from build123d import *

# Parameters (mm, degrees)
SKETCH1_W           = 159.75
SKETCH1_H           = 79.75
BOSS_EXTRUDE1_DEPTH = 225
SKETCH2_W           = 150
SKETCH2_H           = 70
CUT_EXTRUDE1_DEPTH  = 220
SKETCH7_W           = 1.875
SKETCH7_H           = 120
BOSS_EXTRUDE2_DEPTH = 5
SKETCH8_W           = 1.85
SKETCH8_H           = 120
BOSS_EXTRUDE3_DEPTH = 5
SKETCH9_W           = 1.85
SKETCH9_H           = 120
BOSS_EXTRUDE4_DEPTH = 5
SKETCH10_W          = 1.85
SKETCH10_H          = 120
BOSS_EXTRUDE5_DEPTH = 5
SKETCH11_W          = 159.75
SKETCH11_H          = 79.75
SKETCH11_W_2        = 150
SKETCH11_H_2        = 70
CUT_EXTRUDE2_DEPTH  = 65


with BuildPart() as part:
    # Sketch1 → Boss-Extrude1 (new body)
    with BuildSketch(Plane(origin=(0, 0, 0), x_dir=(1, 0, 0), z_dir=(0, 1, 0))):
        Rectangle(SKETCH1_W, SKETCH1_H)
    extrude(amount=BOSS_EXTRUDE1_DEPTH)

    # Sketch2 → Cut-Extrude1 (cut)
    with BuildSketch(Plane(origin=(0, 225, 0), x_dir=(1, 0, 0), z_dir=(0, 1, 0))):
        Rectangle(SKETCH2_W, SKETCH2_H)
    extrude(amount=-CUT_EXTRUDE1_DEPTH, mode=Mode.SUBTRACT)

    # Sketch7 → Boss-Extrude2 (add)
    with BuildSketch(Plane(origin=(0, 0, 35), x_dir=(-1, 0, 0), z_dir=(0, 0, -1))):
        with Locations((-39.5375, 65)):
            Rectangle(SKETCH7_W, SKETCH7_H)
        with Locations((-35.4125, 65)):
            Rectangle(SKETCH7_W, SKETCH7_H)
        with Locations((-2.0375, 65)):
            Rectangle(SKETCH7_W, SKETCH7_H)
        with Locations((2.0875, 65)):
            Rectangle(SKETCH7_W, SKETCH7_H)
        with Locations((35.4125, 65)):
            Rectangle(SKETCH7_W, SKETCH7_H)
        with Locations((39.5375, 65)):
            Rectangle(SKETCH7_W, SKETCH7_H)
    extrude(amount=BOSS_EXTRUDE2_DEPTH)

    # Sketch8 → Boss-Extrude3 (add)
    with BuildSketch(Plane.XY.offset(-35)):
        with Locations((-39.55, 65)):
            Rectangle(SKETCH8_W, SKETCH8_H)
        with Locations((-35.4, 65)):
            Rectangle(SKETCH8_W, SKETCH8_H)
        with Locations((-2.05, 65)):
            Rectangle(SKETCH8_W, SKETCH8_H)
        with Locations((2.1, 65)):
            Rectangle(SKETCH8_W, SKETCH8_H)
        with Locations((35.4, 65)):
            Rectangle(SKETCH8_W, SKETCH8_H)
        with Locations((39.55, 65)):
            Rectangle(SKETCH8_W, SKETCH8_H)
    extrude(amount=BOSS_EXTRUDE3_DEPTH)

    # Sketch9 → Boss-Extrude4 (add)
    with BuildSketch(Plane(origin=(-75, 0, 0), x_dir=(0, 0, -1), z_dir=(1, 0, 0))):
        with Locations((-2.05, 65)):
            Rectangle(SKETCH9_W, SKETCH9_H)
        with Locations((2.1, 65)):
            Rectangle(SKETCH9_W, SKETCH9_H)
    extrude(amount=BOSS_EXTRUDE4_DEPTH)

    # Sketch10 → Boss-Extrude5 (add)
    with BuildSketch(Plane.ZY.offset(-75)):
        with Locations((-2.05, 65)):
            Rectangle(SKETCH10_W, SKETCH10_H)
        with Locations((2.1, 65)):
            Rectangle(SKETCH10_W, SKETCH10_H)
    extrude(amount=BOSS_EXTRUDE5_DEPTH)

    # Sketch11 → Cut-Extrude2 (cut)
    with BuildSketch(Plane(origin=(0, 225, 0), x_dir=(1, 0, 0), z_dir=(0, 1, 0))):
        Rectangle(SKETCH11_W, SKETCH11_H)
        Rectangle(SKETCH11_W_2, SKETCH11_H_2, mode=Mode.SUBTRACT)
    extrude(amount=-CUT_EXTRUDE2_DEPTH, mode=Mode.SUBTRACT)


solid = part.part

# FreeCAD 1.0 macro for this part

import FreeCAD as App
import Part
import Sketcher
from FreeCAD import Vector
Q = App.Units.Quantity

doc = App.newDocument("Part")
body = doc.addObject("PartDesign::Body", "Body")

# Sketch on XZ plane
sketch1 = body.newObject("Sketcher::SketchObject", "Sketch")
sketch1.AttachmentSupport = (doc.getObject("XZ_Plane"), [""])
sketch1.MapMode = "FlatFace"
sketch1.addGeometry([
    Part.LineSegment(Vector(-80, -40, 0), Vector(-80, 40, 0)),
    Part.LineSegment(Vector(-80, 40, 0), Vector(80, 40, 0)),
    Part.LineSegment(Vector(80, 40, 0), Vector(80, -40, 0)),
    Part.LineSegment(Vector(80, -40, 0), Vector(-80, -40, 0)),
], False)
sketch1.addConstraint([
    Sketcher.Constraint("Coincident", 0, 2, 1, 1),
    Sketcher.Constraint("Coincident", 1, 2, 2, 1),
    Sketcher.Constraint("Coincident", 2, 2, 3, 1),
    Sketcher.Constraint("Coincident", 3, 2, 0, 1),
    Sketcher.Constraint("Vertical", 0),
    Sketcher.Constraint("Horizontal", 1),
    Sketcher.Constraint("Vertical", 2),
    Sketcher.Constraint("Horizontal", 3),
    Sketcher.Constraint("Symmetric", 0, 2, 2, 2, -1, 1),
    Sketcher.Constraint("DistanceX", 1, 1, 1, 2, Q("159.75 mm")),
    Sketcher.Constraint("DistanceY", 0, 1, 0, 2, Q("79.75 mm")),
])
pad1 = body.newObject("PartDesign::Pad", "Pad")
pad1.Profile = sketch1
pad1.Length = 225
pad1.Reversed = True

# Sketch on XZ plane
sketch2 = body.newObject("Sketcher::SketchObject", "Sketch001")
sketch2.AttachmentSupport = (doc.getObject("XZ_Plane"), [""])
sketch2.MapMode = "FlatFace"
sketch2.AttachmentOffset = App.Placement(Vector(0, 0, -225), App.Rotation())
sketch2.addGeometry([
    Part.LineSegment(Vector(-75, -35, 0), Vector(-75, 35, 0)),
    Part.LineSegment(Vector(-75, 35, 0), Vector(75, 35, 0)),
    Part.LineSegment(Vector(75, 35, 0), Vector(75, -35, 0)),
    Part.LineSegment(Vector(75, -35, 0), Vector(-75, -35, 0)),
], False)
sketch2.addConstraint([
    Sketcher.Constraint("Coincident", 0, 2, 1, 1),
    Sketcher.Constraint("Coincident", 1, 2, 2, 1),
    Sketcher.Constraint("Coincident", 2, 2, 3, 1),
    Sketcher.Constraint("Coincident", 3, 2, 0, 1),
    Sketcher.Constraint("Vertical", 0),
    Sketcher.Constraint("Horizontal", 1),
    Sketcher.Constraint("Vertical", 2),
    Sketcher.Constraint("Horizontal", 3),
    Sketcher.Constraint("Symmetric", 0, 2, 2, 2, -1, 1),
    Sketcher.Constraint("DistanceX", 1, 1, 1, 2, Q("150 mm")),
    Sketcher.Constraint("DistanceY", 0, 1, 0, 2, Q("70 mm")),
])
pocket1 = body.newObject("PartDesign::Pocket", "Pocket")
pocket1.Profile = sketch2
pocket1.Length = 220
pocket1.Reversed = True

# Sketch on XY plane
sketch3 = body.newObject("Sketcher::SketchObject", "Sketch002")
sketch3.AttachmentSupport = (doc.getObject("XY_Plane"), [""])
sketch3.MapMode = "FlatFace"
sketch3.AttachmentOffset = App.Placement(Vector(0, 0, 35), App.Rotation())
sketch3.addGeometry([
    Part.LineSegment(Vector(40.5, 125, 0), Vector(40.5, 5, 0)),  # 0
    Part.LineSegment(Vector(40.5, 5, 0), Vector(38.6, 5, 0)),  # 1
    Part.LineSegment(Vector(38.6, 5, 0), Vector(38.6, 125, 0)),  # 2
    Part.LineSegment(Vector(38.6, 125, 0), Vector(40.5, 125, 0)),  # 3
    Part.LineSegment(Vector(36.4, 125, 0), Vector(36.4, 5, 0)),  # 4
    Part.LineSegment(Vector(36.4, 5, 0), Vector(34.5, 5, 0)),  # 5
    Part.LineSegment(Vector(34.5, 5, 0), Vector(34.5, 125, 0)),  # 6
    Part.LineSegment(Vector(34.5, 125, 0), Vector(36.4, 125, 0)),  # 7
    Part.LineSegment(Vector(3, 125, 0), Vector(3, 5, 0)),  # 8
    Part.LineSegment(Vector(3, 5, 0), Vector(1.1, 5, 0)),  # 9
    Part.LineSegment(Vector(1.1, 5, 0), Vector(1.1, 125, 0)),  # 10
    Part.LineSegment(Vector(1.1, 125, 0), Vector(3, 125, 0)),  # 11
    Part.LineSegment(Vector(-1.1, 125, 0), Vector(-1.1, 5, 0)),  # 12
    Part.LineSegment(Vector(-1.1, 5, 0), Vector(-3, 5, 0)),  # 13
    Part.LineSegment(Vector(-3, 5, 0), Vector(-3, 125, 0)),  # 14
    Part.LineSegment(Vector(-3, 125, 0), Vector(-1.1, 125, 0)),  # 15
    Part.LineSegment(Vector(-34.5, 125, 0), Vector(-34.5, 5, 0)),  # 16
    Part.LineSegment(Vector(-34.5, 5, 0), Vector(-36.4, 5, 0)),  # 17
    Part.LineSegment(Vector(-36.4, 5, 0), Vector(-36.4, 125, 0)),  # 18
    Part.LineSegment(Vector(-36.4, 125, 0), Vector(-34.5, 125, 0)),  # 19
    Part.LineSegment(Vector(-38.6, 125, 0), Vector(-38.6, 5, 0)),  # 20
    Part.LineSegment(Vector(-38.6, 5, 0), Vector(-40.5, 5, 0)),  # 21
    Part.LineSegment(Vector(-40.5, 5, 0), Vector(-40.5, 125, 0)),  # 22
    Part.LineSegment(Vector(-40.5, 125, 0), Vector(-38.6, 125, 0)),  # 23
], False)
sketch3.addConstraint([
    Sketcher.Constraint("Coincident", 0, 2, 1, 1),
    Sketcher.Constraint("Coincident", 1, 2, 2, 1),
    Sketcher.Constraint("Coincident", 2, 2, 3, 1),
    Sketcher.Constraint("Coincident", 3, 2, 0, 1),
    Sketcher.Constraint("Coincident", 4, 2, 5, 1),
    Sketcher.Constraint("Coincident", 5, 2, 6, 1),
    Sketcher.Constraint("Coincident", 6, 2, 7, 1),
    Sketcher.Constraint("Coincident", 7, 2, 4, 1),
    Sketcher.Constraint("Coincident", 8, 2, 9, 1),
    Sketcher.Constraint("Coincident", 9, 2, 10, 1),
    Sketcher.Constraint("Coincident", 10, 2, 11, 1),
    Sketcher.Constraint("Coincident", 11, 2, 8, 1),
    Sketcher.Constraint("Coincident", 12, 2, 13, 1),
    Sketcher.Constraint("Coincident", 13, 2, 14, 1),
    Sketcher.Constraint("Coincident", 14, 2, 15, 1),
    Sketcher.Constraint("Coincident", 15, 2, 12, 1),
    Sketcher.Constraint("Coincident", 16, 2, 17, 1),
    Sketcher.Constraint("Coincident", 17, 2, 18, 1),
    Sketcher.Constraint("Coincident", 18, 2, 19, 1),
    Sketcher.Constraint("Coincident", 19, 2, 16, 1),
    Sketcher.Constraint("Coincident", 20, 2, 21, 1),
    Sketcher.Constraint("Coincident", 21, 2, 22, 1),
    Sketcher.Constraint("Coincident", 22, 2, 23, 1),
    Sketcher.Constraint("Coincident", 23, 2, 20, 1),
    Sketcher.Constraint("Vertical", 0),
    Sketcher.Constraint("Horizontal", 1),
    Sketcher.Constraint("Vertical", 2),
    Sketcher.Constraint("Horizontal", 3),
    Sketcher.Constraint("Vertical", 4),
    Sketcher.Constraint("Horizontal", 5),
    Sketcher.Constraint("Vertical", 6),
    Sketcher.Constraint("Horizontal", 7),
    Sketcher.Constraint("Vertical", 8),
    Sketcher.Constraint("Horizontal", 9),
    Sketcher.Constraint("Vertical", 10),
    Sketcher.Constraint("Horizontal", 11),
    Sketcher.Constraint("Vertical", 12),
    Sketcher.Constraint("Horizontal", 13),
    Sketcher.Constraint("Vertical", 14),
    Sketcher.Constraint("Horizontal", 15),
    Sketcher.Constraint("Vertical", 16),
    Sketcher.Constraint("Horizontal", 17),
    Sketcher.Constraint("Vertical", 18),
    Sketcher.Constraint("Horizontal", 19),
    Sketcher.Constraint("Vertical", 20),
    Sketcher.Constraint("Horizontal", 21),
    Sketcher.Constraint("Vertical", 22),
    Sketcher.Constraint("Horizontal", 23),
    Sketcher.Constraint("Symmetric", 5, 2, 16, 2, -2),
    Sketcher.Constraint("Symmetric", 7, 2, 18, 2, -2),
    Sketcher.Constraint("Symmetric", 1, 2, 20, 2, -2),
    Sketcher.Constraint("Symmetric", 3, 2, 22, 2, -2),
    Sketcher.Constraint("Horizontal", 1, 2, 4, 2),
    Sketcher.Constraint("Horizontal", 3, 2, 6, 2),
    Sketcher.Constraint("Horizontal", 5, 2, 8, 2),
    Sketcher.Constraint("Horizontal", 7, 2, 10, 2),
    Sketcher.Constraint("Horizontal", 9, 2, 12, 2),
    Sketcher.Constraint("Horizontal", 11, 2, 14, 2),
    Sketcher.Constraint("Equal", 3, 5),
    Sketcher.Constraint("Equal", 7, 9),
    Sketcher.Constraint("Equal", 11, 13),
    Sketcher.Constraint("DistanceY", 0, 2, 0, 1, Q("120 mm")),
    Sketcher.Constraint("DistanceY", -1, 1, 0, 2, Q("5 mm")),
    Sketcher.Constraint("DistanceX", 5, 2, 0, 2, Q("6 mm")),
    Sketcher.Constraint("DistanceX", 13, 2, 8, 2, Q("6 mm")),
    Sketcher.Constraint("DistanceX", -1, 1, 1, 2, Q("38.6 mm")),
    Sketcher.Constraint("DistanceX", -1, 1, 9, 2, Q("1.1 mm")),
    Sketcher.Constraint("DistanceX", 17, 2, 12, 2, Q("35.2 mm")),
])
pad2 = body.newObject("PartDesign::Pad", "Pad001")
pad2.Profile = sketch3
pad2.Length = 5
pad2.Reversed = True

# Sketch on XY plane
sketch4 = body.newObject("Sketcher::SketchObject", "Sketch003")
sketch4.AttachmentSupport = (doc.getObject("XY_Plane"), [""])
sketch4.MapMode = "FlatFace"
sketch4.AttachmentOffset = App.Placement(Vector(0, 0, -35), App.Rotation())
sketch4.addGeometry([
    Part.LineSegment(Vector(-40.5, 125, 0), Vector(-40.5, 5, 0)),  # 0
    Part.LineSegment(Vector(-40.5, 5, 0), Vector(-38.6, 5, 0)),  # 1
    Part.LineSegment(Vector(-38.6, 5, 0), Vector(-38.6, 125, 0)),  # 2
    Part.LineSegment(Vector(-38.6, 125, 0), Vector(-40.5, 125, 0)),  # 3
    Part.LineSegment(Vector(-36.3, 125, 0), Vector(-36.3, 5, 0)),  # 4
    Part.LineSegment(Vector(-36.3, 5, 0), Vector(-34.5, 5, 0)),  # 5
    Part.LineSegment(Vector(-34.5, 5, 0), Vector(-34.5, 125, 0)),  # 6
    Part.LineSegment(Vector(-34.5, 125, 0), Vector(-36.3, 125, 0)),  # 7
    Part.LineSegment(Vector(-3, 125, 0), Vector(-3, 5, 0)),  # 8
    Part.LineSegment(Vector(-3, 5, 0), Vector(-1.1, 5, 0)),  # 9
    Part.LineSegment(Vector(-1.1, 5, 0), Vector(-1.1, 125, 0)),  # 10
    Part.LineSegment(Vector(-1.1, 125, 0), Vector(-3, 125, 0)),  # 11
    Part.LineSegment(Vector(1.2, 125, 0), Vector(1.2, 5, 0)),  # 12
    Part.LineSegment(Vector(1.2, 5, 0), Vector(3, 5, 0)),  # 13
    Part.LineSegment(Vector(3, 5, 0), Vector(3, 125, 0)),  # 14
    Part.LineSegment(Vector(3, 125, 0), Vector(1.2, 125, 0)),  # 15
    Part.LineSegment(Vector(34.5, 125, 0), Vector(34.5, 5, 0)),  # 16
    Part.LineSegment(Vector(34.5, 5, 0), Vector(36.3, 5, 0)),  # 17
    Part.LineSegment(Vector(36.3, 5, 0), Vector(36.3, 125, 0)),  # 18
    Part.LineSegment(Vector(36.3, 125, 0), Vector(34.5, 125, 0)),  # 19
    Part.LineSegment(Vector(38.6, 125, 0), Vector(38.6, 5, 0)),  # 20
    Part.LineSegment(Vector(38.6, 5, 0), Vector(40.5, 5, 0)),  # 21
    Part.LineSegment(Vector(40.5, 5, 0), Vector(40.5, 125, 0)),  # 22
    Part.LineSegment(Vector(40.5, 125, 0), Vector(38.6, 125, 0)),  # 23
], False)
sketch4.addConstraint([
    Sketcher.Constraint("Coincident", 0, 2, 1, 1),
    Sketcher.Constraint("Coincident", 1, 2, 2, 1),
    Sketcher.Constraint("Coincident", 2, 2, 3, 1),
    Sketcher.Constraint("Coincident", 3, 2, 0, 1),
    Sketcher.Constraint("Coincident", 4, 2, 5, 1),
    Sketcher.Constraint("Coincident", 5, 2, 6, 1),
    Sketcher.Constraint("Coincident", 6, 2, 7, 1),
    Sketcher.Constraint("Coincident", 7, 2, 4, 1),
    Sketcher.Constraint("Coincident", 8, 2, 9, 1),
    Sketcher.Constraint("Coincident", 9, 2, 10, 1),
    Sketcher.Constraint("Coincident", 10, 2, 11, 1),
    Sketcher.Constraint("Coincident", 11, 2, 8, 1),
    Sketcher.Constraint("Coincident", 12, 2, 13, 1),
    Sketcher.Constraint("Coincident", 13, 2, 14, 1),
    Sketcher.Constraint("Coincident", 14, 2, 15, 1),
    Sketcher.Constraint("Coincident", 15, 2, 12, 1),
    Sketcher.Constraint("Coincident", 16, 2, 17, 1),
    Sketcher.Constraint("Coincident", 17, 2, 18, 1),
    Sketcher.Constraint("Coincident", 18, 2, 19, 1),
    Sketcher.Constraint("Coincident", 19, 2, 16, 1),
    Sketcher.Constraint("Coincident", 20, 2, 21, 1),
    Sketcher.Constraint("Coincident", 21, 2, 22, 1),
    Sketcher.Constraint("Coincident", 22, 2, 23, 1),
    Sketcher.Constraint("Coincident", 23, 2, 20, 1),
    Sketcher.Constraint("Vertical", 0),
    Sketcher.Constraint("Horizontal", 1),
    Sketcher.Constraint("Vertical", 2),
    Sketcher.Constraint("Horizontal", 3),
    Sketcher.Constraint("Vertical", 4),
    Sketcher.Constraint("Horizontal", 5),
    Sketcher.Constraint("Vertical", 6),
    Sketcher.Constraint("Horizontal", 7),
    Sketcher.Constraint("Vertical", 8),
    Sketcher.Constraint("Horizontal", 9),
    Sketcher.Constraint("Vertical", 10),
    Sketcher.Constraint("Horizontal", 11),
    Sketcher.Constraint("Vertical", 12),
    Sketcher.Constraint("Horizontal", 13),
    Sketcher.Constraint("Vertical", 14),
    Sketcher.Constraint("Horizontal", 15),
    Sketcher.Constraint("Vertical", 16),
    Sketcher.Constraint("Horizontal", 17),
    Sketcher.Constraint("Vertical", 18),
    Sketcher.Constraint("Horizontal", 19),
    Sketcher.Constraint("Vertical", 20),
    Sketcher.Constraint("Horizontal", 21),
    Sketcher.Constraint("Vertical", 22),
    Sketcher.Constraint("Horizontal", 23),
    Sketcher.Constraint("Symmetric", 5, 2, 16, 2, -2),
    Sketcher.Constraint("Symmetric", 7, 2, 18, 2, -2),
    Sketcher.Constraint("Symmetric", 1, 2, 20, 2, -2),
    Sketcher.Constraint("Symmetric", 3, 2, 22, 2, -2),
    Sketcher.Constraint("Horizontal", 1, 2, 4, 2),
    Sketcher.Constraint("Horizontal", 3, 2, 6, 2),
    Sketcher.Constraint("Horizontal", 5, 2, 8, 2),
    Sketcher.Constraint("Horizontal", 7, 2, 10, 2),
    Sketcher.Constraint("Horizontal", 9, 2, 12, 2),
    Sketcher.Constraint("Horizontal", 11, 2, 14, 2),
    Sketcher.Constraint("Equal", 3, 5),
    Sketcher.Constraint("Equal", 7, 9),
    Sketcher.Constraint("Equal", 11, 13),
    Sketcher.Constraint("DistanceY", 0, 2, 0, 1, Q("120 mm")),
    Sketcher.Constraint("DistanceY", -1, 1, 0, 2, Q("5 mm")),
    Sketcher.Constraint("DistanceX", 0, 2, 5, 2, Q("6 mm")),
    Sketcher.Constraint("DistanceX", 8, 2, 13, 2, Q("6 mm")),
    Sketcher.Constraint("DistanceX", 1, 1, 1, 2, Q("1.85 mm")),
    Sketcher.Constraint("DistanceX", 5, 2, 8, 2, Q("31.5 mm")),
    Sketcher.Constraint("DistanceX", 12, 2, 16, 2, Q("33.3 mm")),
])
pad3 = body.newObject("PartDesign::Pad", "Pad002")
pad3.Profile = sketch4
pad3.Length = 5

# Sketch on YZ plane
sketch5 = body.newObject("Sketcher::SketchObject", "Sketch004")
sketch5.AttachmentSupport = (doc.getObject("YZ_Plane"), [""])
sketch5.MapMode = "FlatFace"
sketch5.AttachmentOffset = App.Placement(Vector(0, 0, -75), App.Rotation())
sketch5.addGeometry([
    Part.LineSegment(Vector(125, 3, 0), Vector(5, 3, 0)),  # 0
    Part.LineSegment(Vector(5, 3, 0), Vector(5, 1.1, 0)),  # 1
    Part.LineSegment(Vector(5, 1.1, 0), Vector(125, 1.1, 0)),  # 2
    Part.LineSegment(Vector(125, 1.1, 0), Vector(125, 3, 0)),  # 3
    Part.LineSegment(Vector(125, -1.2, 0), Vector(5, -1.2, 0)),  # 4
    Part.LineSegment(Vector(5, -1.2, 0), Vector(5, -3, 0)),  # 5
    Part.LineSegment(Vector(5, -3, 0), Vector(125, -3, 0)),  # 6
    Part.LineSegment(Vector(125, -3, 0), Vector(125, -1.2, 0)),  # 7
], False)
sketch5.addConstraint([
    Sketcher.Constraint("Coincident", 0, 2, 1, 1),
    Sketcher.Constraint("Coincident", 1, 2, 2, 1),
    Sketcher.Constraint("Coincident", 2, 2, 3, 1),
    Sketcher.Constraint("Coincident", 3, 2, 0, 1),
    Sketcher.Constraint("Coincident", 4, 2, 5, 1),
    Sketcher.Constraint("Coincident", 5, 2, 6, 1),
    Sketcher.Constraint("Coincident", 6, 2, 7, 1),
    Sketcher.Constraint("Coincident", 7, 2, 4, 1),
    Sketcher.Constraint("Horizontal", 0),
    Sketcher.Constraint("Vertical", 1),
    Sketcher.Constraint("Horizontal", 2),
    Sketcher.Constraint("Vertical", 3),
    Sketcher.Constraint("Horizontal", 4),
    Sketcher.Constraint("Vertical", 5),
    Sketcher.Constraint("Horizontal", 6),
    Sketcher.Constraint("Vertical", 7),
    Sketcher.Constraint("Vertical", 1, 2, 4, 2),
    Sketcher.Constraint("Vertical", 3, 2, 6, 2),
    Sketcher.Constraint("Equal", 3, 5),
    Sketcher.Constraint("DistanceX", 0, 2, 0, 1, Q("120 mm")),
    Sketcher.Constraint("DistanceX", -1, 1, 0, 2, Q("5 mm")),
    Sketcher.Constraint("DistanceY", 5, 2, 0, 2, Q("6 mm")),
    Sketcher.Constraint("DistanceY", 1, 2, 1, 1, Q("1.85 mm")),
    Sketcher.Constraint("DistanceY", -1, 1, 0, 2, Q("2.975 mm")),
])
pad4 = body.newObject("PartDesign::Pad", "Pad003")
pad4.Profile = sketch5
pad4.Length = 5

# Sketch on YZ plane
sketch6 = body.newObject("Sketcher::SketchObject", "Sketch005")
sketch6.AttachmentSupport = (doc.getObject("YZ_Plane"), [""])
sketch6.MapMode = "FlatFace"
sketch6.AttachmentOffset = App.Placement(Vector(0, 0, 75), App.Rotation())
sketch6.addGeometry([
    Part.LineSegment(Vector(125, -3, 0), Vector(5, -3, 0)),  # 0
    Part.LineSegment(Vector(5, -3, 0), Vector(5, -1.1, 0)),  # 1
    Part.LineSegment(Vector(5, -1.1, 0), Vector(125, -1.1, 0)),  # 2
    Part.LineSegment(Vector(125, -1.1, 0), Vector(125, -3, 0)),  # 3
    Part.LineSegment(Vector(125, 1.2, 0), Vector(5, 1.2, 0)),  # 4
    Part.LineSegment(Vector(5, 1.2, 0), Vector(5, 3, 0)),  # 5
    Part.LineSegment(Vector(5, 3, 0), Vector(125, 3, 0)),  # 6
    Part.LineSegment(Vector(125, 3, 0), Vector(125, 1.2, 0)),  # 7
], False)
sketch6.addConstraint([
    Sketcher.Constraint("Coincident", 0, 2, 1, 1),
    Sketcher.Constraint("Coincident", 1, 2, 2, 1),
    Sketcher.Constraint("Coincident", 2, 2, 3, 1),
    Sketcher.Constraint("Coincident", 3, 2, 0, 1),
    Sketcher.Constraint("Coincident", 4, 2, 5, 1),
    Sketcher.Constraint("Coincident", 5, 2, 6, 1),
    Sketcher.Constraint("Coincident", 6, 2, 7, 1),
    Sketcher.Constraint("Coincident", 7, 2, 4, 1),
    Sketcher.Constraint("Horizontal", 0),
    Sketcher.Constraint("Vertical", 1),
    Sketcher.Constraint("Horizontal", 2),
    Sketcher.Constraint("Vertical", 3),
    Sketcher.Constraint("Horizontal", 4),
    Sketcher.Constraint("Vertical", 5),
    Sketcher.Constraint("Horizontal", 6),
    Sketcher.Constraint("Vertical", 7),
    Sketcher.Constraint("Vertical", 1, 2, 4, 2),
    Sketcher.Constraint("Vertical", 3, 2, 6, 2),
    Sketcher.Constraint("Equal", 3, 5),
    Sketcher.Constraint("DistanceX", 0, 2, 0, 1, Q("120 mm")),
    Sketcher.Constraint("DistanceX", -1, 1, 0, 2, Q("5 mm")),
    Sketcher.Constraint("DistanceY", 0, 2, 5, 2, Q("6 mm")),
    Sketcher.Constraint("DistanceY", 1, 1, 1, 2, Q("1.85 mm")),
    Sketcher.Constraint("DistanceY", 0, 2, -1, 1, Q("2.975 mm")),
])
pad5 = body.newObject("PartDesign::Pad", "Pad004")
pad5.Profile = sketch6
pad5.Length = 5
pad5.Reversed = True

# Sketch on XZ plane
sketch7 = body.newObject("Sketcher::SketchObject", "Sketch006")
sketch7.AttachmentSupport = (doc.getObject("XZ_Plane"), [""])
sketch7.MapMode = "FlatFace"
sketch7.AttachmentOffset = App.Placement(Vector(0, 0, -225), App.Rotation())
sketch7.addGeometry([
    Part.LineSegment(Vector(-80, -40, 0), Vector(-80, 40, 0)),  # 0
    Part.LineSegment(Vector(-80, 40, 0), Vector(80, 40, 0)),  # 1
    Part.LineSegment(Vector(80, 40, 0), Vector(80, -40, 0)),  # 2
    Part.LineSegment(Vector(80, -40, 0), Vector(-80, -40, 0)),  # 3
    Part.LineSegment(Vector(75, 35, 0), Vector(-75, 35, 0)),  # 4
    Part.LineSegment(Vector(-75, 35, 0), Vector(-75, -35, 0)),  # 5
    Part.LineSegment(Vector(-75, -35, 0), Vector(75, -35, 0)),  # 6
    Part.LineSegment(Vector(75, -35, 0), Vector(75, 35, 0)),  # 7
], False)
sketch7.addConstraint([
    Sketcher.Constraint("Coincident", 0, 2, 1, 1),
    Sketcher.Constraint("Coincident", 1, 2, 2, 1),
    Sketcher.Constraint("Coincident", 2, 2, 3, 1),
    Sketcher.Constraint("Coincident", 3, 2, 0, 1),
    Sketcher.Constraint("Coincident", 4, 2, 5, 1),
    Sketcher.Constraint("Coincident", 5, 2, 6, 1),
    Sketcher.Constraint("Coincident", 6, 2, 7, 1),
    Sketcher.Constraint("Coincident", 7, 2, 4, 1),
    Sketcher.Constraint("Vertical", 0),
    Sketcher.Constraint("Horizontal", 1),
    Sketcher.Constraint("Vertical", 2),
    Sketcher.Constraint("Horizontal", 3),
    Sketcher.Constraint("Horizontal", 4),
    Sketcher.Constraint("Vertical", 5),
    Sketcher.Constraint("Horizontal", 6),
    Sketcher.Constraint("Vertical", 7),
    Sketcher.Constraint("Symmetric", 0, 2, 2, 2, -1, 1),
    Sketcher.Constraint("Symmetric", 4, 2, 6, 2, -1, 1),
    Sketcher.Constraint("DistanceX", 4, 2, 4, 1, Q("150 mm")),
    Sketcher.Constraint("DistanceY", 5, 2, 5, 1, Q("70 mm")),
    Sketcher.Constraint("DistanceX", 1, 1, 1, 2, Q("159.75 mm")),
    Sketcher.Constraint("DistanceY", 0, 1, 0, 2, Q("79.75 mm")),
])
pocket2 = body.newObject("PartDesign::Pocket", "Pocket001")
pocket2.Profile = sketch7
pocket2.Length = 65
pocket2.Reversed = True

doc.recompute()
